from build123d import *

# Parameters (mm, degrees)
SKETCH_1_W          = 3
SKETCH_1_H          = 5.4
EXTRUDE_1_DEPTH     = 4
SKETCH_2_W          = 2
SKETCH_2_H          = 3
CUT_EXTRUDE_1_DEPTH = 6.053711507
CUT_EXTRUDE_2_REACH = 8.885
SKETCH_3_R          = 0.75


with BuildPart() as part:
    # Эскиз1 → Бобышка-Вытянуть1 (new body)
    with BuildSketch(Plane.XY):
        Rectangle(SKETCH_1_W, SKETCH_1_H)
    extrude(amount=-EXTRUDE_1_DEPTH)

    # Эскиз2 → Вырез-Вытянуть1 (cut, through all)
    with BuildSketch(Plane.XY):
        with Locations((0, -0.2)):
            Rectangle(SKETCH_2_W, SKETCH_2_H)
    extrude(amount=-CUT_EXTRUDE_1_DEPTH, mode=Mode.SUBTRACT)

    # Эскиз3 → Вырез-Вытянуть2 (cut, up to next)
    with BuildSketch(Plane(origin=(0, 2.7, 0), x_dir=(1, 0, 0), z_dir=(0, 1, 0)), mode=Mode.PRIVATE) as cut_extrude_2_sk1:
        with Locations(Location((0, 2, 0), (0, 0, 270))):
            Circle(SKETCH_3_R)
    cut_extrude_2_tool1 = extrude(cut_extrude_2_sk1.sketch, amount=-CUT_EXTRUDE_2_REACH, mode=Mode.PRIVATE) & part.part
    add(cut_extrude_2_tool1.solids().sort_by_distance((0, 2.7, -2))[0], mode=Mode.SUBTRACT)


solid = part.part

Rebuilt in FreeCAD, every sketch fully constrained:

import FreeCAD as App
import Part
import Sketcher

V = App.Vector


def add_polygon(sketch, points):
    """Adds a closed chain of lines whose ends are joined by coincident constraints."""
    first, n = sketch.GeometryCount, len(points)
    for a, b in zip(points, points[1:] + points[:1]):
        sketch.addGeometry(Part.LineSegment(App.Vector(*a, 0), App.Vector(*b, 0)), False)
    for i in range(n):
        sketch.addConstraint(Sketcher.Constraint("Coincident", first + i, 2, first + (i + 1) % n, 1))

doc = App.newDocument("Part")
params = doc.addObject("Spreadsheet::Sheet", "Params")
for row, (alias, value) in enumerate([
    ("sketch1_width", "3 mm"),
    ("sketch1_height", "5.4 mm"),
    ("pad1_length", "4 mm"),
    ("sketch2_width", "2 mm"),
    ("sketch2_height", "3 mm"),
    ("sketch3_diameter", "1.5 mm"),
], start=1):
    params.set(f"A{row}", alias)
    params.set(f"B{row}", "=" + value)
    params.setAlias(f"B{row}", alias)

body = doc.addObject("PartDesign::Body", "Body")

sketch1 = body.newObject("Sketcher::SketchObject", "Sketch")
sketch1.AttachmentSupport = (doc.getObject("XY_Plane"), [""])
sketch1.MapMode = "FlatFace"
add_polygon(sketch1, [(-1.5, 2.7), (-1.5, -2.7), (1.5, -2.7), (1.5, 2.7)])
sketch1.addConstraint(Sketcher.Constraint("Vertical", 0))
sketch1.addConstraint(Sketcher.Constraint("Horizontal", 1))
sketch1.addConstraint(Sketcher.Constraint("Vertical", 2))
sketch1.addConstraint(Sketcher.Constraint("Horizontal", 3))
sketch1.addConstraint(Sketcher.Constraint("Symmetric", 0, 2, 2, 2, -1, 1))
sketch1.addConstraint(Sketcher.Constraint("DistanceX", 1, 1, 1, 2, 3.0))
sketch1.addConstraint(Sketcher.Constraint("DistanceY", 0, 2, 0, 1, 5.4))
sketch1.setExpression("Constraints[9]", "Params.sketch1_width")
sketch1.setExpression("Constraints[10]", "Params.sketch1_height")
pad1 = body.newObject("PartDesign::Pad", "Pad")
pad1.Profile = sketch1
pad1.setExpression("Length", "Params.pad1_length")
pad1.Reversed = True

sketch2 = body.newObject("Sketcher::SketchObject", "Sketch001")
sketch2.AttachmentSupport = (doc.getObject("XY_Plane"), [""])
sketch2.MapMode = "FlatFace"
add_polygon(sketch2, [(-1, 1.3), (-1, -1.7), (1, -1.7), (1, 1.3)])
sketch2.addConstraint(Sketcher.Constraint("Vertical", 0))
sketch2.addConstraint(Sketcher.Constraint("Horizontal", 1))
sketch2.addConstraint(Sketcher.Constraint("Vertical", 2))
sketch2.addConstraint(Sketcher.Constraint("Horizontal", 3))
sketch2.addConstraint(Sketcher.Constraint("DistanceX", 1, 1, 1, 2, 2.0))
sketch2.addConstraint(Sketcher.Constraint("DistanceY", 0, 2, 0, 1, 3.0))
sketch2.addConstraint(Sketcher.Constraint("DistanceX", 0, 2, -1, 1, 1.0))
sketch2.addConstraint(Sketcher.Constraint("DistanceY", 0, 2, -1, 1, 1.7))
sketch2.setExpression("Constraints[8]", "Params.sketch2_width")
sketch2.setExpression("Constraints[9]", "Params.sketch2_height")
pocket1 = body.newObject("PartDesign::Pocket", "Pocket")
pocket1.Profile = sketch2
pocket1.Type = "ThroughAll"

sketch3 = body.newObject("Sketcher::SketchObject", "Sketch002")
sketch3.AttachmentSupport = (doc.getObject("XZ_Plane"), [""])
sketch3.MapMode = "FlatFace"
sketch3.AttachmentOffset = App.Placement(V(0, 0, -2.7), App.Rotation())
sketch3.addGeometry(Part.Circle(V(0, -2, 0), V(0, 0, 1), 0.8), False)
sketch3.addConstraint(Sketcher.Constraint("PointOnObject", 0, 3, -2))
sketch3.addConstraint(Sketcher.Constraint("Diameter", 0, 1.5))
sketch3.addConstraint(Sketcher.Constraint("DistanceY", 0, 3, -1, 1, 2.0))
sketch3.setExpression("Constraints[1]", "Params.sketch3_diameter")
pocket2 = body.newObject("PartDesign::Pocket", "Pocket001")
pocket2.Profile = sketch3
pocket2.Type = "UpToFirst"
pocket2.Reversed = True

doc.recompute()
